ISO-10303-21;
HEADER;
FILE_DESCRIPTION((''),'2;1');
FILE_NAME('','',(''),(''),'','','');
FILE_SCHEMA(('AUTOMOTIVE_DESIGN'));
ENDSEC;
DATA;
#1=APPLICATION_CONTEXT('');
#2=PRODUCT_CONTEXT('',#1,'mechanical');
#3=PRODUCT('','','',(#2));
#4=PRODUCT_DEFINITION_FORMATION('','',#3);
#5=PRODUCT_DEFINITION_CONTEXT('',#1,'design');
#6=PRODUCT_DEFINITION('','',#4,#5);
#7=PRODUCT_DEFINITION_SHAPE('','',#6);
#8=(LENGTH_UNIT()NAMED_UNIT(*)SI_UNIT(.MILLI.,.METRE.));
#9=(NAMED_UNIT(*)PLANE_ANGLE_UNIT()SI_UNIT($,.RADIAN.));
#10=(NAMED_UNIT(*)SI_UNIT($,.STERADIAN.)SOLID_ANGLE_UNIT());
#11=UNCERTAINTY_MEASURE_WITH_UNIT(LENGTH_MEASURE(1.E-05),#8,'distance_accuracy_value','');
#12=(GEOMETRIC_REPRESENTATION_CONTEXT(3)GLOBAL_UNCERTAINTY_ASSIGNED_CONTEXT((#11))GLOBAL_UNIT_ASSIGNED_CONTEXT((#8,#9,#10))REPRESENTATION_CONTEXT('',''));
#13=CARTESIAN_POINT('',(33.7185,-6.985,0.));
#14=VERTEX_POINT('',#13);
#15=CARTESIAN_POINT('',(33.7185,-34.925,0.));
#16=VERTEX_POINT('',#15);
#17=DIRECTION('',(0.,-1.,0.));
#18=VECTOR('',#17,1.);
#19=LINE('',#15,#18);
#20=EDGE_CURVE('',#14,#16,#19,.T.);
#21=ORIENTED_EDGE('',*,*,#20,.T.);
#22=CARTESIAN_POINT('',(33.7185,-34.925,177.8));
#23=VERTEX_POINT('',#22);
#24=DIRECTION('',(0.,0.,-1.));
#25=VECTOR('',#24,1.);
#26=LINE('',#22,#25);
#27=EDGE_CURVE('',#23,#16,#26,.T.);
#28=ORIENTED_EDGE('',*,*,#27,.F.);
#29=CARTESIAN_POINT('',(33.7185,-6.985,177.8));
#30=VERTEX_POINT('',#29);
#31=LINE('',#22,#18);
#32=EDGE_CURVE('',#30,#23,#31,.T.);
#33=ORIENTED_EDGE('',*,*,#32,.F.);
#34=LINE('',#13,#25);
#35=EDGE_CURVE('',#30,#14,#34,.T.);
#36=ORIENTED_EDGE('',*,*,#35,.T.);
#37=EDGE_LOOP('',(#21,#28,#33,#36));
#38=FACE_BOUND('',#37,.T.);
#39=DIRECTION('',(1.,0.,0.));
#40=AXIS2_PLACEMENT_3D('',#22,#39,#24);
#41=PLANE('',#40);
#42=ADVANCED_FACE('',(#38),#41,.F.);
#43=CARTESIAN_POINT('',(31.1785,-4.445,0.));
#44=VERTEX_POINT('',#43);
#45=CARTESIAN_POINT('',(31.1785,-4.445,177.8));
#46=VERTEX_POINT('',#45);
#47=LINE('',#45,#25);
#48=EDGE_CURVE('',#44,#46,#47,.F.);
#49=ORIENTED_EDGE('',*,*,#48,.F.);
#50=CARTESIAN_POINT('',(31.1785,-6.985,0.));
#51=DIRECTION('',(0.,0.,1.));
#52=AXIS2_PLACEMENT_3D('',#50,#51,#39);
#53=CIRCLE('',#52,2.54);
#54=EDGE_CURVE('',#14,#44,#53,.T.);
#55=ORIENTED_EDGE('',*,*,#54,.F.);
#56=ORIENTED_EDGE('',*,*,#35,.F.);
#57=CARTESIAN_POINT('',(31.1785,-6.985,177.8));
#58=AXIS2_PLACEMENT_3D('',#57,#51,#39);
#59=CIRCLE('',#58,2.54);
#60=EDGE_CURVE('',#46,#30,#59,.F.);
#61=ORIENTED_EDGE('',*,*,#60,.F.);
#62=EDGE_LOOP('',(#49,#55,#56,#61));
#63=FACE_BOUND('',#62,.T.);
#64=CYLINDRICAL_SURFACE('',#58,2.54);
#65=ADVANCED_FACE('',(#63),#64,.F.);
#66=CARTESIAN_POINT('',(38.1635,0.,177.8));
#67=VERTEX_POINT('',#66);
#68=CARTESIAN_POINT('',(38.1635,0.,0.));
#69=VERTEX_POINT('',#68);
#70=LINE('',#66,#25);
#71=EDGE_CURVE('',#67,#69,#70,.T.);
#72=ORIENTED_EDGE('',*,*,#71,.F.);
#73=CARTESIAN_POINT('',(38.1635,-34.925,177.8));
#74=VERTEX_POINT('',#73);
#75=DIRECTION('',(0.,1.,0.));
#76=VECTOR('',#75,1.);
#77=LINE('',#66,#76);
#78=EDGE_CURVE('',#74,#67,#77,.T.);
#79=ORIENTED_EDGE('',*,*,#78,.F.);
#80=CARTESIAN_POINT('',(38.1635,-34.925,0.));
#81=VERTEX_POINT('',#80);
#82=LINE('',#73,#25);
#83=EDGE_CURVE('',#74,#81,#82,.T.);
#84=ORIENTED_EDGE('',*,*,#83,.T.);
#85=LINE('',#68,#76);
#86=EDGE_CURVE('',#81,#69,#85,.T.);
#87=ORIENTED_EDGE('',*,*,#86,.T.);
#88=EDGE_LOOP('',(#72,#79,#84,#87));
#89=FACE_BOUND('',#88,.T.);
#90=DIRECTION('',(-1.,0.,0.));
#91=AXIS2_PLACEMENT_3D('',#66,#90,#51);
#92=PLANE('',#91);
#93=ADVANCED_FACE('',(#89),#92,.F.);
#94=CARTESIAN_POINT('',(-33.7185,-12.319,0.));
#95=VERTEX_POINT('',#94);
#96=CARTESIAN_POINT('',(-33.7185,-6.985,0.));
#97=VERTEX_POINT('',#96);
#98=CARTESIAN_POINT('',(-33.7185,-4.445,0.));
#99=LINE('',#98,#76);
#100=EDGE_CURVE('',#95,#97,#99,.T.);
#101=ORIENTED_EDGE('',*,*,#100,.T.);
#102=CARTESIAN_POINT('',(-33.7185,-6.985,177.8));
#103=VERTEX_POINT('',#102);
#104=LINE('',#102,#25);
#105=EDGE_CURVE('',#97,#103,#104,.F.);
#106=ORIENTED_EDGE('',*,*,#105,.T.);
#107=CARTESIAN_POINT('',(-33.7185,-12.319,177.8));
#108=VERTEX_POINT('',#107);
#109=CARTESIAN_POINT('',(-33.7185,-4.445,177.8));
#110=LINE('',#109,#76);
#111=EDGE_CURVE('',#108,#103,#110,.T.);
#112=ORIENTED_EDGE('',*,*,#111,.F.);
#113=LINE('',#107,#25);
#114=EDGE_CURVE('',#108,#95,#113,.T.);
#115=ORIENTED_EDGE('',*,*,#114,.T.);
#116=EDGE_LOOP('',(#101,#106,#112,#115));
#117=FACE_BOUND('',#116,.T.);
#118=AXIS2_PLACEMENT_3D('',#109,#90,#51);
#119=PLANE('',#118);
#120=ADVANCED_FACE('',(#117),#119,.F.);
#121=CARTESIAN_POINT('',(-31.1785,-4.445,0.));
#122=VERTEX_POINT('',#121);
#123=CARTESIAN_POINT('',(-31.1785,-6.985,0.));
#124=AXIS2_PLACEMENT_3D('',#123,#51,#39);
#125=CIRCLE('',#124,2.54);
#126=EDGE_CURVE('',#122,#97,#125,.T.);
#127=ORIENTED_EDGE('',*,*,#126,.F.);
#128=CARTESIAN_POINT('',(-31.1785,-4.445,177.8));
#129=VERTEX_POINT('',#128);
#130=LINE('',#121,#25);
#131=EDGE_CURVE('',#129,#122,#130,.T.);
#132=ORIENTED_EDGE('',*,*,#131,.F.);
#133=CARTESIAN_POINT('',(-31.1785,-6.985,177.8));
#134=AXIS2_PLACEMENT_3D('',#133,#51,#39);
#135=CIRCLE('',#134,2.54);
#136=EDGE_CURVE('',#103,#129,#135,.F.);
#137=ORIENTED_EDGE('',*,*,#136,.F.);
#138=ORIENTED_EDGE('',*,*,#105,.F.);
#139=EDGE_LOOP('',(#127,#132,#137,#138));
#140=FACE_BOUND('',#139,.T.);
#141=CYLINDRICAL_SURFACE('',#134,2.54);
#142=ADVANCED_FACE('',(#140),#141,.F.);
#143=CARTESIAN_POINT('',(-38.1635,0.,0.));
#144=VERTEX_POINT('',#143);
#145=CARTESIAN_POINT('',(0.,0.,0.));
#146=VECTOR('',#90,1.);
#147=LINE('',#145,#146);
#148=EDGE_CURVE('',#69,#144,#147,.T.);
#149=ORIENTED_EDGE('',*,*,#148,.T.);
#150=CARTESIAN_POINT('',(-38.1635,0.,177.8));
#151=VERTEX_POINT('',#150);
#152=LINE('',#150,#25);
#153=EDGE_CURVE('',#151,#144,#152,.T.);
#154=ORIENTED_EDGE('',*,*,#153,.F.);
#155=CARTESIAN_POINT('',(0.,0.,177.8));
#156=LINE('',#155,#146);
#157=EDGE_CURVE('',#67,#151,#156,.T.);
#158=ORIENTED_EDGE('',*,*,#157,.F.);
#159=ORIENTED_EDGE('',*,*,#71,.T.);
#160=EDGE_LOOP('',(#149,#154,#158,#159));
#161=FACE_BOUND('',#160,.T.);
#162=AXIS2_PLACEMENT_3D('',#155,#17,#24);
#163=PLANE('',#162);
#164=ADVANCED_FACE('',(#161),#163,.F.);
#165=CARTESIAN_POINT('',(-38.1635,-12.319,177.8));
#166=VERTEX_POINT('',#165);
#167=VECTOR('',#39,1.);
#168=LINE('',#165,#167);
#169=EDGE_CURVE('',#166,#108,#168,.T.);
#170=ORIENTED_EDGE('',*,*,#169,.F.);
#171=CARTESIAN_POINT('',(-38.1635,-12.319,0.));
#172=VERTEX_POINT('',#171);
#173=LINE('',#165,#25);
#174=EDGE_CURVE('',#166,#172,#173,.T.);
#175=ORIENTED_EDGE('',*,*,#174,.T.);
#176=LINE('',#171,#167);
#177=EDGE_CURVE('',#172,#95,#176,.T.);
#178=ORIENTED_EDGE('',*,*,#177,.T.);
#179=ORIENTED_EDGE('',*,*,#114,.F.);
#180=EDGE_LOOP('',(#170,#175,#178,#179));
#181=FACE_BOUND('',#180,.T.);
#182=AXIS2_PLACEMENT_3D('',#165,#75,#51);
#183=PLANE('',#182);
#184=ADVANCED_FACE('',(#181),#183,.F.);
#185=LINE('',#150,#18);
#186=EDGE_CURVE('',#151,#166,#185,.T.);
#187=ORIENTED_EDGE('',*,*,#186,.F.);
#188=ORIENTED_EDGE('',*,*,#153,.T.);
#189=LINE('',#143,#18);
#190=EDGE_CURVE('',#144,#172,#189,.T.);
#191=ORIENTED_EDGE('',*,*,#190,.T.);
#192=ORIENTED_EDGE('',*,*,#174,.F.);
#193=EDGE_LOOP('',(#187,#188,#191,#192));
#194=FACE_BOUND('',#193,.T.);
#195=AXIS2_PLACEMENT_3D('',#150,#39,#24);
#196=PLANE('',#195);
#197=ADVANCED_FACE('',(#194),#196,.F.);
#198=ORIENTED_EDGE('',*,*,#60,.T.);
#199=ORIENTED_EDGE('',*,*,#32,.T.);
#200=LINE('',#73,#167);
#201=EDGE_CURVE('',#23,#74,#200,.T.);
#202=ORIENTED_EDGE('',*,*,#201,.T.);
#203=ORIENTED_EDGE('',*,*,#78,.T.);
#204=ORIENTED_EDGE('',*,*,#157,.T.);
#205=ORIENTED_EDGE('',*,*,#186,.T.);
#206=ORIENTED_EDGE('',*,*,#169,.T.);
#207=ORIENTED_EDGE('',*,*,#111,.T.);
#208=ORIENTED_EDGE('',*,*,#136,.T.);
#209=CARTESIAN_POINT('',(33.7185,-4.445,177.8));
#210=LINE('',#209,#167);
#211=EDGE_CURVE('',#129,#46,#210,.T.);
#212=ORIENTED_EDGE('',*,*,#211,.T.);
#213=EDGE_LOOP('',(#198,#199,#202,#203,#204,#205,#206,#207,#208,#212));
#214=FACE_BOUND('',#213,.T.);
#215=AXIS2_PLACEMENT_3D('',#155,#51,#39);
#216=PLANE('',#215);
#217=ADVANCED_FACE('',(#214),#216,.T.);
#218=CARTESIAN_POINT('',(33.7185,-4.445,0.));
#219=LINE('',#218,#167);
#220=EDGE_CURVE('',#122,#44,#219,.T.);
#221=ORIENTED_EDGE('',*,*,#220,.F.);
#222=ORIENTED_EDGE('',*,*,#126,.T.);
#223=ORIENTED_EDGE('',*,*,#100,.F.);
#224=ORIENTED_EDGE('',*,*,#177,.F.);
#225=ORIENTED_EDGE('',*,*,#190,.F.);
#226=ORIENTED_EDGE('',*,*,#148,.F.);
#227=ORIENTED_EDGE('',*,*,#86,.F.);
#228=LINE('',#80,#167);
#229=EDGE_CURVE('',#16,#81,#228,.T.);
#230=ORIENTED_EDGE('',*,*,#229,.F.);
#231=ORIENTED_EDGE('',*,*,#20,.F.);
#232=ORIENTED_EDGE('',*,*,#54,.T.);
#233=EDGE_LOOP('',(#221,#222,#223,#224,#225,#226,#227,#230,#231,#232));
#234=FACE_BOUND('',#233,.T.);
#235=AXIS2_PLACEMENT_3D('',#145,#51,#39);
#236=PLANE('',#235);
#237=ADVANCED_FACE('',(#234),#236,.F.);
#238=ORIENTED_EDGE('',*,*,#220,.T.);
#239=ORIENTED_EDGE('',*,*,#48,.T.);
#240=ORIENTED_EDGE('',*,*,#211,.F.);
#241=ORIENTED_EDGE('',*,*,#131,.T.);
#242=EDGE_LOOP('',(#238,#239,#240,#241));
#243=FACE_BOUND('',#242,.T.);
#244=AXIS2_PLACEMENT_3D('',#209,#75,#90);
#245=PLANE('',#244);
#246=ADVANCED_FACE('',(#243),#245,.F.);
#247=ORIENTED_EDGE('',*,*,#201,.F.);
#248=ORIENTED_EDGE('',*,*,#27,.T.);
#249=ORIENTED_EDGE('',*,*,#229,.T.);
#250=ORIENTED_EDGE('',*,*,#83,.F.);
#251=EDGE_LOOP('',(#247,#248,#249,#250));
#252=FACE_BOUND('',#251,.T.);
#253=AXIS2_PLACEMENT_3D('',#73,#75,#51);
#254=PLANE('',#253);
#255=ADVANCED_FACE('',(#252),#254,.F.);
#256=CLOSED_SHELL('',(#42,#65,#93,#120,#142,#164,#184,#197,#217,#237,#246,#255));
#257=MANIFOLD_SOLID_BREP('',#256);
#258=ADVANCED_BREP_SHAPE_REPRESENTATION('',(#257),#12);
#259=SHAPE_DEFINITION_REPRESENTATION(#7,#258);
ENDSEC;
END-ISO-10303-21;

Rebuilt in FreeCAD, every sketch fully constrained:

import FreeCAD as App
import Part
import Sketcher
Q = App.Units.Quantity


def edges_at(feature, points):
    """Names of the edges that pass closest to the given points."""
    edges = feature.Shape.Edges
    near = lambda p: min(range(len(edges)), key=lambda i: edges[i].distToShape(Part.Vertex(*p))[0])
    return sorted({f"Edge{near(p) + 1}" for p in points})


def add_polygon(sketch, points):
    """Adds a closed chain of lines whose ends are joined by coincident constraints."""
    first, n = sketch.GeometryCount, len(points)
    for a, b in zip(points, points[1:] + points[:1]):
        sketch.addGeometry(Part.LineSegment(App.Vector(*a, 0), App.Vector(*b, 0)), False)
    for i in range(n):
        sketch.addConstraint(Sketcher.Constraint("Coincident", first + i, 2, first + (i + 1) % n, 1))

doc = App.newDocument("Part")
params = doc.addObject("Spreadsheet::Sheet", "Params")
for row, (alias, value) in enumerate([
    ("sketch1_height", "1.2 in"),
    ("sketch1_height2", "0.31 in"),
    ("sketch1_width", "3.005 in"),
    ("sketch1_width2", "0.175 in"),
    ("sketch1_height3", "0.485 in"),
    ("pad1_length", "7 in"),
    ("fillet_radius", "0.1 in"),
    ("fillet2_radius", "0.1 in"),
], start=1):
    params.set(f"A{row}", alias)
    params.set(f"B{row}", "=" + value)
    params.setAlias(f"B{row}", alias)

body = doc.addObject("PartDesign::Body", "Body")

sketch1 = body.newObject("Sketcher::SketchObject", "Sketch")
sketch1.AttachmentSupport = (doc.getObject("XY_Plane"), [""])
sketch1.MapMode = "FlatFace"
add_polygon(sketch1, [(38.2, 0), (-38.2, 0), (-38.2, -12.3), (-33.7, -12.3), (-33.7, -4.4), (33.7, -4.4), (33.7, -34.9), (38.2, -34.9)])
sketch1.addConstraint(Sketcher.Constraint("Horizontal", 0))
sketch1.addConstraint(Sketcher.Constraint("Vertical", 1))
sketch1.addConstraint(Sketcher.Constraint("Horizontal", 2))
sketch1.addConstraint(Sketcher.Constraint("Vertical", 3))
sketch1.addConstraint(Sketcher.Constraint("Horizontal", 4))
sketch1.addConstraint(Sketcher.Constraint("Vertical", 5))
sketch1.addConstraint(Sketcher.Constraint("Horizontal", 6))
sketch1.addConstraint(Sketcher.Constraint("Vertical", 7))
sketch1.addConstraint(Sketcher.Constraint("Symmetric", 0, 2, 7, 2, -1, 1))
sketch1.addConstraint(Sketcher.Constraint("Equal", 2, 6))
sketch1.addConstraint(Sketcher.Constraint("DistanceY", 5, 2, 5, 1, Q("1.2 in")))
sketch1.addConstraint(Sketcher.Constraint("DistanceY", 3, 1, 3, 2, Q("0.31 in")))
sketch1.addConstraint(Sketcher.Constraint("DistanceX", 0, 2, 0, 1, Q("3.005 in")))
sketch1.addConstraint(Sketcher.Constraint("DistanceX", 2, 1, 2, 2, Q("0.175 in")))
sketch1.addConstraint(Sketcher.Constraint("DistanceY", 1, 2, 1, 1, Q("0.485 in")))
sketch1.setExpression("Constraints[18]", "Params.sketch1_height")
sketch1.setExpression("Constraints[19]", "Params.sketch1_height2")
sketch1.setExpression("Constraints[20]", "Params.sketch1_width")
sketch1.setExpression("Constraints[21]", "Params.sketch1_width2")
sketch1.setExpression("Constraints[22]", "Params.sketch1_height3")
pad1 = body.newObject("PartDesign::Pad", "Pad")
pad1.Profile = sketch1
pad1.setExpression("Length", "Params.pad1_length")
doc.recompute()

fillet = body.newObject("PartDesign::Fillet", "Fillet")
fillet.Base = (pad1, edges_at(pad1, [(33.718, -4.445, 88.9)]))
fillet.setExpression("Radius", "Params.fillet_radius")
doc.recompute()

fillet2 = body.newObject("PartDesign::Fillet", "Fillet001")
fillet2.Base = (fillet, edges_at(fillet, [(-33.718, -4.445, 88.9)]))
fillet2.setExpression("Radius", "Params.fillet2_radius")

doc.recompute()
